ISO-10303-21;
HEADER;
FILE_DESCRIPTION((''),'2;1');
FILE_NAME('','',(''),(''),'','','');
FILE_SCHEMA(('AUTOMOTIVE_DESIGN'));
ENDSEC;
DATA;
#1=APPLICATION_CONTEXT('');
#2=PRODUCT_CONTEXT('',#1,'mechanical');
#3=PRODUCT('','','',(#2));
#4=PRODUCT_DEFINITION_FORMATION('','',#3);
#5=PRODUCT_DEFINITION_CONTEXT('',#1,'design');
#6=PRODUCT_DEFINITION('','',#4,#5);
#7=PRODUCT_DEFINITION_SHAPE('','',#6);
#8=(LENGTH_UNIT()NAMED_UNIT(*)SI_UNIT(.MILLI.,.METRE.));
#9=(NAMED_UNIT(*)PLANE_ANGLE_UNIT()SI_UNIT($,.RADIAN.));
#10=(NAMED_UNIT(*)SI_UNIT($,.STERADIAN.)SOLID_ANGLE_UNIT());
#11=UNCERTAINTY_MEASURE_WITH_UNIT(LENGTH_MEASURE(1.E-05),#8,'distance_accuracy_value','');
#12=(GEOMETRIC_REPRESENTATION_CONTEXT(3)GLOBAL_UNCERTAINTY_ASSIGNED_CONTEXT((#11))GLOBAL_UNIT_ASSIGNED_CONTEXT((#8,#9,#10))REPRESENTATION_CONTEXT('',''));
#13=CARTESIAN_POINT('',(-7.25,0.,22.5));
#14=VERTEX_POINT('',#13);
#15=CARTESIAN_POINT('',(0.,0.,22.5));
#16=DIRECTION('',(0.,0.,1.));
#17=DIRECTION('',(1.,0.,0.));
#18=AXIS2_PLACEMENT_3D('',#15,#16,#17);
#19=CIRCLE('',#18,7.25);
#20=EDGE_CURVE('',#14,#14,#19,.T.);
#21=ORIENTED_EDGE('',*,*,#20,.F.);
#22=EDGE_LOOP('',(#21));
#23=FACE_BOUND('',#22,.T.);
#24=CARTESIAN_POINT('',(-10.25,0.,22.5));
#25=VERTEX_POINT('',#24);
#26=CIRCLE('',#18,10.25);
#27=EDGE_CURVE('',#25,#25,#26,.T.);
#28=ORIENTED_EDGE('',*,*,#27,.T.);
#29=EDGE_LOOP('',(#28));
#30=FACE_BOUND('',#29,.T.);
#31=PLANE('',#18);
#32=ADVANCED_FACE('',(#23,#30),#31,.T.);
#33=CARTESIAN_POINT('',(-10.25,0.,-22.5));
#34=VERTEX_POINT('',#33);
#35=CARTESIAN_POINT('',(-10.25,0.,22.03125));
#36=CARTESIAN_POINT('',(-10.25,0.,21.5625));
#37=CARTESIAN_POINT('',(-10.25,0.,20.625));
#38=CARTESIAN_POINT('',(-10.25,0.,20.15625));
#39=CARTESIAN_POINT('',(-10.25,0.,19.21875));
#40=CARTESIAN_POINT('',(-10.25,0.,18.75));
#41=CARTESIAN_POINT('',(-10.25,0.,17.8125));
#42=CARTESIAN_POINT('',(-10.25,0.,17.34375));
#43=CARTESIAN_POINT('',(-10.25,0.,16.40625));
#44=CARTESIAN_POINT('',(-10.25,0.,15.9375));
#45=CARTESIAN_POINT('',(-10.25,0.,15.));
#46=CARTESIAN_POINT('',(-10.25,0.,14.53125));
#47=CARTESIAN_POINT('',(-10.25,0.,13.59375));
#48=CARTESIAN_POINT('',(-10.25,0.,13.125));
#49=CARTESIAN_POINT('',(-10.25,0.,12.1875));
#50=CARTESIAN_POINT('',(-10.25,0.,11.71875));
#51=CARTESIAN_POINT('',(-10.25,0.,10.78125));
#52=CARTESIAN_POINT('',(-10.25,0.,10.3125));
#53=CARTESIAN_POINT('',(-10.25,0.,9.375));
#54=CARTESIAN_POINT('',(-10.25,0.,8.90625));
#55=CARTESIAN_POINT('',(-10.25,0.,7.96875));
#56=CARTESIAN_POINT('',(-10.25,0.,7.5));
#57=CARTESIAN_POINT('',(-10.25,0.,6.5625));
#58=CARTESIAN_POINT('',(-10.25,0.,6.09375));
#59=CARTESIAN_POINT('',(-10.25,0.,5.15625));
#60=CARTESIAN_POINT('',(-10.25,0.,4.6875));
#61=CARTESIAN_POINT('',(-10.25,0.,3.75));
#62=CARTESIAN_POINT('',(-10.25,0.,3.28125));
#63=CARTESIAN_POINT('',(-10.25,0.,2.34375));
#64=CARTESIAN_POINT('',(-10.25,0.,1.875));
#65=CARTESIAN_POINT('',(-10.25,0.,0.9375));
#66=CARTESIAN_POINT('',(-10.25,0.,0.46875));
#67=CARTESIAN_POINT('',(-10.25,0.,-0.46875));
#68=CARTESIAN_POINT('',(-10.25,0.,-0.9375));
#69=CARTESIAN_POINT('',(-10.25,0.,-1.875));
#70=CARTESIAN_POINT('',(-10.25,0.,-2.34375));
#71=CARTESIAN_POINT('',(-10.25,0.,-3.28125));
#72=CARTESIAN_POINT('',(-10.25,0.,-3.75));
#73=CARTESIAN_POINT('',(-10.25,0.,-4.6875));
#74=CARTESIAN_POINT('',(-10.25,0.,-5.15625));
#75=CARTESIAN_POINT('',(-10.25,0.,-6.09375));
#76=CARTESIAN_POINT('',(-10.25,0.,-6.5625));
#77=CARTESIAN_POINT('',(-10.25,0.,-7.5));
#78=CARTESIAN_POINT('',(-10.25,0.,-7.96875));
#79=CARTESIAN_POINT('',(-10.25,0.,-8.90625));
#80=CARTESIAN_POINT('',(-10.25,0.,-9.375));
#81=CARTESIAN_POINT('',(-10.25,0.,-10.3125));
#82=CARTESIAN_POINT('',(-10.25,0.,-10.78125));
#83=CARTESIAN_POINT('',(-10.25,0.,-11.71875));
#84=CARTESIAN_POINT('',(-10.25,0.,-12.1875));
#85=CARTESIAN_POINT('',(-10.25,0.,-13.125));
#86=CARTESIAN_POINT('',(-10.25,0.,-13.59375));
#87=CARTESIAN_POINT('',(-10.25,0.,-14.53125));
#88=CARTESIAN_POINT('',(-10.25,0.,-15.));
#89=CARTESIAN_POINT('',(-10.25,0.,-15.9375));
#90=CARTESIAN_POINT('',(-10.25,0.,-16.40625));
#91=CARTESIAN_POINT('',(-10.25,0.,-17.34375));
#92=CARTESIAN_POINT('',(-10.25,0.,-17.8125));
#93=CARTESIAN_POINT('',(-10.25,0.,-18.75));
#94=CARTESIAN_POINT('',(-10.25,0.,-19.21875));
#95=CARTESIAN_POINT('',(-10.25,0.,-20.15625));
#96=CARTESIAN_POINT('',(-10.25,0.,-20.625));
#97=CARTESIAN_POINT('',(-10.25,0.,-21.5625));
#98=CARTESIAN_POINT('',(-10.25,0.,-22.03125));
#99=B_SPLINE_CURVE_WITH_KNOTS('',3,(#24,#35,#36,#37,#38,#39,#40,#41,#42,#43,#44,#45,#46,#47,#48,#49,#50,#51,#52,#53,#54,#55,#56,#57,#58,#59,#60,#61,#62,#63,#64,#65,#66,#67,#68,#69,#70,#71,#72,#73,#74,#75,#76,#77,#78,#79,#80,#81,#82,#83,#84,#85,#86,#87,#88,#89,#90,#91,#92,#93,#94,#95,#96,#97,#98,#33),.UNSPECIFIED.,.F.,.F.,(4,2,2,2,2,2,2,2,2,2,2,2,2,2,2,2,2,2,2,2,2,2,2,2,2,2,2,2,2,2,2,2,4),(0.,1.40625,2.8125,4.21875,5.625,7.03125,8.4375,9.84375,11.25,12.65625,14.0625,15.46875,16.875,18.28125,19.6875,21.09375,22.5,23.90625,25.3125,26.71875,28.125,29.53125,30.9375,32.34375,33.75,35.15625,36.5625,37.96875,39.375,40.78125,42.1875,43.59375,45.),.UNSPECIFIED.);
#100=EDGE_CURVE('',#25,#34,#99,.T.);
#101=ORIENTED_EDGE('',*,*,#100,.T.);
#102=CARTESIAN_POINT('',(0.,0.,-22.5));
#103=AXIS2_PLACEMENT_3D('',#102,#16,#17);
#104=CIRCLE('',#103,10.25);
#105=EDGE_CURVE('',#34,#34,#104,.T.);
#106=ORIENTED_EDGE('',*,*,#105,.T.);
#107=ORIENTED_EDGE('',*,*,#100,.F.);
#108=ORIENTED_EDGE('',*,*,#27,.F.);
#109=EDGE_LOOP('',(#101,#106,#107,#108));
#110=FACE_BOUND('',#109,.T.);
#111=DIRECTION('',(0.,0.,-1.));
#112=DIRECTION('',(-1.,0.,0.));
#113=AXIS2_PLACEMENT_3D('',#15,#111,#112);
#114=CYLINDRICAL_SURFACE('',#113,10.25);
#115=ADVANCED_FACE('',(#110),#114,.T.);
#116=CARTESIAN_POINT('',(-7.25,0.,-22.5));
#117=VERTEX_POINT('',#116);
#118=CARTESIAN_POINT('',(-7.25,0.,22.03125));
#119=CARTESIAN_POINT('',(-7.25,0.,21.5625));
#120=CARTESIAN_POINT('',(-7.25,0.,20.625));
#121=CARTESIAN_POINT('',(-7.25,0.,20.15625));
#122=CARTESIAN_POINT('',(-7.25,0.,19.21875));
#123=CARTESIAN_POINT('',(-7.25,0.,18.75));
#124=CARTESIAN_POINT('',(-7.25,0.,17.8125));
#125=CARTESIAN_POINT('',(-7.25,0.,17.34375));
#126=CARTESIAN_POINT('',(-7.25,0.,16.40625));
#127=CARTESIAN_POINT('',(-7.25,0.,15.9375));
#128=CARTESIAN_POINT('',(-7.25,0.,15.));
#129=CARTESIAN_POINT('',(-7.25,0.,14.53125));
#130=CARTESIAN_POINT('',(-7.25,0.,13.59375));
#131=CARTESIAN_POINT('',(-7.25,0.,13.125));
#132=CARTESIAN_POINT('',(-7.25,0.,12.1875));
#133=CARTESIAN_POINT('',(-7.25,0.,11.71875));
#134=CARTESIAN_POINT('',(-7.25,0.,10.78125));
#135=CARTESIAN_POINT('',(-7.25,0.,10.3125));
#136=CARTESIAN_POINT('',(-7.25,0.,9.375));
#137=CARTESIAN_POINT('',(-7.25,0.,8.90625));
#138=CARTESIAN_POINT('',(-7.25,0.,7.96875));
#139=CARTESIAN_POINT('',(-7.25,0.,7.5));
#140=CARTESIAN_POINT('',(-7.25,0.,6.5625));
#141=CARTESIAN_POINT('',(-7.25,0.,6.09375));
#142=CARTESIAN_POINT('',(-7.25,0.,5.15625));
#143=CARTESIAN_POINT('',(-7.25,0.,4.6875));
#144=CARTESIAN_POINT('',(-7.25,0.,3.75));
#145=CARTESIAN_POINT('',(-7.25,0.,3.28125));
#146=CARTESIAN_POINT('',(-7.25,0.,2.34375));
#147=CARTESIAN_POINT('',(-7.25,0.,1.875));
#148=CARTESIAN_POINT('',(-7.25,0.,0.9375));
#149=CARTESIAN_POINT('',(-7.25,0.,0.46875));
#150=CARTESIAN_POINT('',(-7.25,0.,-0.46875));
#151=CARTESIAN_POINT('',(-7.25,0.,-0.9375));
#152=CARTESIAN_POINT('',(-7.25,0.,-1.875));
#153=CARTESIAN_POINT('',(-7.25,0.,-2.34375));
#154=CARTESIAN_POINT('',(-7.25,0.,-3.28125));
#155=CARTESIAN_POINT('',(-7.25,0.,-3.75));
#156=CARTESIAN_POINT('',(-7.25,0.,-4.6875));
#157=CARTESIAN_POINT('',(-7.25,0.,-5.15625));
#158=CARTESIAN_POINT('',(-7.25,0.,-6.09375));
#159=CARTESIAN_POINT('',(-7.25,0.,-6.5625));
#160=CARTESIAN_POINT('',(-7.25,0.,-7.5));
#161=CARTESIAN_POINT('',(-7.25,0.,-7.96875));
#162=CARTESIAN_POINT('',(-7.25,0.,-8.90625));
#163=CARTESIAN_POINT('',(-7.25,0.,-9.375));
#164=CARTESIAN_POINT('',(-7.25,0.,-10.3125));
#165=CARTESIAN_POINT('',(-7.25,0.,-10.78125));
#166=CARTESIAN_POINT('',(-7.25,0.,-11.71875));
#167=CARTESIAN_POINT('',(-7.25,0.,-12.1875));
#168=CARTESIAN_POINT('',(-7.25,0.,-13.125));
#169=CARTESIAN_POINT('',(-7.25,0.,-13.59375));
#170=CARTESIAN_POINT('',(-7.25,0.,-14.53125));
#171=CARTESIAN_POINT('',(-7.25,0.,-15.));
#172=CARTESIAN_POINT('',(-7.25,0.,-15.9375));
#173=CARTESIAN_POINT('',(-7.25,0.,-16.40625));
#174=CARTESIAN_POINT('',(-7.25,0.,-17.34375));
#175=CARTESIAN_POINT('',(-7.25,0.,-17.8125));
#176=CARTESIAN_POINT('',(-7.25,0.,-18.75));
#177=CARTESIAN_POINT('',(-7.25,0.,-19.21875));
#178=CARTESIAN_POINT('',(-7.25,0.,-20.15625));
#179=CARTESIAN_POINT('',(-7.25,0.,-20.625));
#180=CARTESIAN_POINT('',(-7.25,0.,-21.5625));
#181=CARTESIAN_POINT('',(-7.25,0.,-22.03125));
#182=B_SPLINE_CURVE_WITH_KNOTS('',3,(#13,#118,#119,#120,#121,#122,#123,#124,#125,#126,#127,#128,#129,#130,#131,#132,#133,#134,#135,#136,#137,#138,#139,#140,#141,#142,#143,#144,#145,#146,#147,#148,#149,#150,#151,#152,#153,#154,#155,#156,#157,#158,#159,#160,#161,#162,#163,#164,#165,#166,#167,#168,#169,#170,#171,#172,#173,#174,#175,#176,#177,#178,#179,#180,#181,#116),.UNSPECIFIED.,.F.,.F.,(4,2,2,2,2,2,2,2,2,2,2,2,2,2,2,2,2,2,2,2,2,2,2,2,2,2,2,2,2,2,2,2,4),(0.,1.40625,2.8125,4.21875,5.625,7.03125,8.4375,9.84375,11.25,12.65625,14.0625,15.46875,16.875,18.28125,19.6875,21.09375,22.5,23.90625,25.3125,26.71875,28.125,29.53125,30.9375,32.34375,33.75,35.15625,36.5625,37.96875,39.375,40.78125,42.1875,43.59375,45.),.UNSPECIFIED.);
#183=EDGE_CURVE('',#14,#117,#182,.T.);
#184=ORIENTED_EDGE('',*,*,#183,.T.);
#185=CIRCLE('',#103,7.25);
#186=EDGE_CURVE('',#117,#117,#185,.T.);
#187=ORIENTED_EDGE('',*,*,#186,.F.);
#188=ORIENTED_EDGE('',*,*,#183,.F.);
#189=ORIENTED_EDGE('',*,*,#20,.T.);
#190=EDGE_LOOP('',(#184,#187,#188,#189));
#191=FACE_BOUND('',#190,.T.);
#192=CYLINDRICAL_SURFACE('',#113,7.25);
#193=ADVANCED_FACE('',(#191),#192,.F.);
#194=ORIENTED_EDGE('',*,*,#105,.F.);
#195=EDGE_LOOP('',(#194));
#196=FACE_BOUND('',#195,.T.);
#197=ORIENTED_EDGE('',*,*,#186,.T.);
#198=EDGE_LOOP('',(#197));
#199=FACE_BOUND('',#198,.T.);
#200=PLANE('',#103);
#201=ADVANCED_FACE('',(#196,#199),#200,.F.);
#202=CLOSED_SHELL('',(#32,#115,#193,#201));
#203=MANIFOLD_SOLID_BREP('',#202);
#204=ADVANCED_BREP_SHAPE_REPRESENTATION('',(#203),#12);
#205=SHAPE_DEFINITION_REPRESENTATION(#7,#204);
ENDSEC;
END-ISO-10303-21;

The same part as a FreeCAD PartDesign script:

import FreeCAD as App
import Part
import Sketcher
from FreeCAD import Vector

doc = App.newDocument("Part")
body = doc.addObject("PartDesign::Body", "Body")

# Sketch on XY plane
sketch1 = body.newObject("Sketcher::SketchObject", "Sketch")
sketch1.AttachmentSupport = (doc.getObject("XY_Plane"), [""])
sketch1.MapMode = "FlatFace"
sketch1.addGeometry(Part.Circle(Vector(0, 0, 0), Vector(0, 0, 1), 10), False)
sketch1.addGeometry(Part.Circle(Vector(0, 0, 0), Vector(0, 0, 1), 7), False)
sketch1.addConstraint(Sketcher.Constraint("Coincident", 0, 3, -1, 1))
sketch1.addConstraint(Sketcher.Constraint("Coincident", 1, 3, -1, 1))
sketch1.addConstraint(Sketcher.Constraint("Diameter", 0, 20.5))
sketch1.addConstraint(Sketcher.Constraint("Diameter", 1, 14.5))
pad1 = body.newObject("PartDesign::Pad", "Pad")
pad1.Profile = sketch1
pad1.Length = 45
pad1.Midplane = True

doc.recompute()
